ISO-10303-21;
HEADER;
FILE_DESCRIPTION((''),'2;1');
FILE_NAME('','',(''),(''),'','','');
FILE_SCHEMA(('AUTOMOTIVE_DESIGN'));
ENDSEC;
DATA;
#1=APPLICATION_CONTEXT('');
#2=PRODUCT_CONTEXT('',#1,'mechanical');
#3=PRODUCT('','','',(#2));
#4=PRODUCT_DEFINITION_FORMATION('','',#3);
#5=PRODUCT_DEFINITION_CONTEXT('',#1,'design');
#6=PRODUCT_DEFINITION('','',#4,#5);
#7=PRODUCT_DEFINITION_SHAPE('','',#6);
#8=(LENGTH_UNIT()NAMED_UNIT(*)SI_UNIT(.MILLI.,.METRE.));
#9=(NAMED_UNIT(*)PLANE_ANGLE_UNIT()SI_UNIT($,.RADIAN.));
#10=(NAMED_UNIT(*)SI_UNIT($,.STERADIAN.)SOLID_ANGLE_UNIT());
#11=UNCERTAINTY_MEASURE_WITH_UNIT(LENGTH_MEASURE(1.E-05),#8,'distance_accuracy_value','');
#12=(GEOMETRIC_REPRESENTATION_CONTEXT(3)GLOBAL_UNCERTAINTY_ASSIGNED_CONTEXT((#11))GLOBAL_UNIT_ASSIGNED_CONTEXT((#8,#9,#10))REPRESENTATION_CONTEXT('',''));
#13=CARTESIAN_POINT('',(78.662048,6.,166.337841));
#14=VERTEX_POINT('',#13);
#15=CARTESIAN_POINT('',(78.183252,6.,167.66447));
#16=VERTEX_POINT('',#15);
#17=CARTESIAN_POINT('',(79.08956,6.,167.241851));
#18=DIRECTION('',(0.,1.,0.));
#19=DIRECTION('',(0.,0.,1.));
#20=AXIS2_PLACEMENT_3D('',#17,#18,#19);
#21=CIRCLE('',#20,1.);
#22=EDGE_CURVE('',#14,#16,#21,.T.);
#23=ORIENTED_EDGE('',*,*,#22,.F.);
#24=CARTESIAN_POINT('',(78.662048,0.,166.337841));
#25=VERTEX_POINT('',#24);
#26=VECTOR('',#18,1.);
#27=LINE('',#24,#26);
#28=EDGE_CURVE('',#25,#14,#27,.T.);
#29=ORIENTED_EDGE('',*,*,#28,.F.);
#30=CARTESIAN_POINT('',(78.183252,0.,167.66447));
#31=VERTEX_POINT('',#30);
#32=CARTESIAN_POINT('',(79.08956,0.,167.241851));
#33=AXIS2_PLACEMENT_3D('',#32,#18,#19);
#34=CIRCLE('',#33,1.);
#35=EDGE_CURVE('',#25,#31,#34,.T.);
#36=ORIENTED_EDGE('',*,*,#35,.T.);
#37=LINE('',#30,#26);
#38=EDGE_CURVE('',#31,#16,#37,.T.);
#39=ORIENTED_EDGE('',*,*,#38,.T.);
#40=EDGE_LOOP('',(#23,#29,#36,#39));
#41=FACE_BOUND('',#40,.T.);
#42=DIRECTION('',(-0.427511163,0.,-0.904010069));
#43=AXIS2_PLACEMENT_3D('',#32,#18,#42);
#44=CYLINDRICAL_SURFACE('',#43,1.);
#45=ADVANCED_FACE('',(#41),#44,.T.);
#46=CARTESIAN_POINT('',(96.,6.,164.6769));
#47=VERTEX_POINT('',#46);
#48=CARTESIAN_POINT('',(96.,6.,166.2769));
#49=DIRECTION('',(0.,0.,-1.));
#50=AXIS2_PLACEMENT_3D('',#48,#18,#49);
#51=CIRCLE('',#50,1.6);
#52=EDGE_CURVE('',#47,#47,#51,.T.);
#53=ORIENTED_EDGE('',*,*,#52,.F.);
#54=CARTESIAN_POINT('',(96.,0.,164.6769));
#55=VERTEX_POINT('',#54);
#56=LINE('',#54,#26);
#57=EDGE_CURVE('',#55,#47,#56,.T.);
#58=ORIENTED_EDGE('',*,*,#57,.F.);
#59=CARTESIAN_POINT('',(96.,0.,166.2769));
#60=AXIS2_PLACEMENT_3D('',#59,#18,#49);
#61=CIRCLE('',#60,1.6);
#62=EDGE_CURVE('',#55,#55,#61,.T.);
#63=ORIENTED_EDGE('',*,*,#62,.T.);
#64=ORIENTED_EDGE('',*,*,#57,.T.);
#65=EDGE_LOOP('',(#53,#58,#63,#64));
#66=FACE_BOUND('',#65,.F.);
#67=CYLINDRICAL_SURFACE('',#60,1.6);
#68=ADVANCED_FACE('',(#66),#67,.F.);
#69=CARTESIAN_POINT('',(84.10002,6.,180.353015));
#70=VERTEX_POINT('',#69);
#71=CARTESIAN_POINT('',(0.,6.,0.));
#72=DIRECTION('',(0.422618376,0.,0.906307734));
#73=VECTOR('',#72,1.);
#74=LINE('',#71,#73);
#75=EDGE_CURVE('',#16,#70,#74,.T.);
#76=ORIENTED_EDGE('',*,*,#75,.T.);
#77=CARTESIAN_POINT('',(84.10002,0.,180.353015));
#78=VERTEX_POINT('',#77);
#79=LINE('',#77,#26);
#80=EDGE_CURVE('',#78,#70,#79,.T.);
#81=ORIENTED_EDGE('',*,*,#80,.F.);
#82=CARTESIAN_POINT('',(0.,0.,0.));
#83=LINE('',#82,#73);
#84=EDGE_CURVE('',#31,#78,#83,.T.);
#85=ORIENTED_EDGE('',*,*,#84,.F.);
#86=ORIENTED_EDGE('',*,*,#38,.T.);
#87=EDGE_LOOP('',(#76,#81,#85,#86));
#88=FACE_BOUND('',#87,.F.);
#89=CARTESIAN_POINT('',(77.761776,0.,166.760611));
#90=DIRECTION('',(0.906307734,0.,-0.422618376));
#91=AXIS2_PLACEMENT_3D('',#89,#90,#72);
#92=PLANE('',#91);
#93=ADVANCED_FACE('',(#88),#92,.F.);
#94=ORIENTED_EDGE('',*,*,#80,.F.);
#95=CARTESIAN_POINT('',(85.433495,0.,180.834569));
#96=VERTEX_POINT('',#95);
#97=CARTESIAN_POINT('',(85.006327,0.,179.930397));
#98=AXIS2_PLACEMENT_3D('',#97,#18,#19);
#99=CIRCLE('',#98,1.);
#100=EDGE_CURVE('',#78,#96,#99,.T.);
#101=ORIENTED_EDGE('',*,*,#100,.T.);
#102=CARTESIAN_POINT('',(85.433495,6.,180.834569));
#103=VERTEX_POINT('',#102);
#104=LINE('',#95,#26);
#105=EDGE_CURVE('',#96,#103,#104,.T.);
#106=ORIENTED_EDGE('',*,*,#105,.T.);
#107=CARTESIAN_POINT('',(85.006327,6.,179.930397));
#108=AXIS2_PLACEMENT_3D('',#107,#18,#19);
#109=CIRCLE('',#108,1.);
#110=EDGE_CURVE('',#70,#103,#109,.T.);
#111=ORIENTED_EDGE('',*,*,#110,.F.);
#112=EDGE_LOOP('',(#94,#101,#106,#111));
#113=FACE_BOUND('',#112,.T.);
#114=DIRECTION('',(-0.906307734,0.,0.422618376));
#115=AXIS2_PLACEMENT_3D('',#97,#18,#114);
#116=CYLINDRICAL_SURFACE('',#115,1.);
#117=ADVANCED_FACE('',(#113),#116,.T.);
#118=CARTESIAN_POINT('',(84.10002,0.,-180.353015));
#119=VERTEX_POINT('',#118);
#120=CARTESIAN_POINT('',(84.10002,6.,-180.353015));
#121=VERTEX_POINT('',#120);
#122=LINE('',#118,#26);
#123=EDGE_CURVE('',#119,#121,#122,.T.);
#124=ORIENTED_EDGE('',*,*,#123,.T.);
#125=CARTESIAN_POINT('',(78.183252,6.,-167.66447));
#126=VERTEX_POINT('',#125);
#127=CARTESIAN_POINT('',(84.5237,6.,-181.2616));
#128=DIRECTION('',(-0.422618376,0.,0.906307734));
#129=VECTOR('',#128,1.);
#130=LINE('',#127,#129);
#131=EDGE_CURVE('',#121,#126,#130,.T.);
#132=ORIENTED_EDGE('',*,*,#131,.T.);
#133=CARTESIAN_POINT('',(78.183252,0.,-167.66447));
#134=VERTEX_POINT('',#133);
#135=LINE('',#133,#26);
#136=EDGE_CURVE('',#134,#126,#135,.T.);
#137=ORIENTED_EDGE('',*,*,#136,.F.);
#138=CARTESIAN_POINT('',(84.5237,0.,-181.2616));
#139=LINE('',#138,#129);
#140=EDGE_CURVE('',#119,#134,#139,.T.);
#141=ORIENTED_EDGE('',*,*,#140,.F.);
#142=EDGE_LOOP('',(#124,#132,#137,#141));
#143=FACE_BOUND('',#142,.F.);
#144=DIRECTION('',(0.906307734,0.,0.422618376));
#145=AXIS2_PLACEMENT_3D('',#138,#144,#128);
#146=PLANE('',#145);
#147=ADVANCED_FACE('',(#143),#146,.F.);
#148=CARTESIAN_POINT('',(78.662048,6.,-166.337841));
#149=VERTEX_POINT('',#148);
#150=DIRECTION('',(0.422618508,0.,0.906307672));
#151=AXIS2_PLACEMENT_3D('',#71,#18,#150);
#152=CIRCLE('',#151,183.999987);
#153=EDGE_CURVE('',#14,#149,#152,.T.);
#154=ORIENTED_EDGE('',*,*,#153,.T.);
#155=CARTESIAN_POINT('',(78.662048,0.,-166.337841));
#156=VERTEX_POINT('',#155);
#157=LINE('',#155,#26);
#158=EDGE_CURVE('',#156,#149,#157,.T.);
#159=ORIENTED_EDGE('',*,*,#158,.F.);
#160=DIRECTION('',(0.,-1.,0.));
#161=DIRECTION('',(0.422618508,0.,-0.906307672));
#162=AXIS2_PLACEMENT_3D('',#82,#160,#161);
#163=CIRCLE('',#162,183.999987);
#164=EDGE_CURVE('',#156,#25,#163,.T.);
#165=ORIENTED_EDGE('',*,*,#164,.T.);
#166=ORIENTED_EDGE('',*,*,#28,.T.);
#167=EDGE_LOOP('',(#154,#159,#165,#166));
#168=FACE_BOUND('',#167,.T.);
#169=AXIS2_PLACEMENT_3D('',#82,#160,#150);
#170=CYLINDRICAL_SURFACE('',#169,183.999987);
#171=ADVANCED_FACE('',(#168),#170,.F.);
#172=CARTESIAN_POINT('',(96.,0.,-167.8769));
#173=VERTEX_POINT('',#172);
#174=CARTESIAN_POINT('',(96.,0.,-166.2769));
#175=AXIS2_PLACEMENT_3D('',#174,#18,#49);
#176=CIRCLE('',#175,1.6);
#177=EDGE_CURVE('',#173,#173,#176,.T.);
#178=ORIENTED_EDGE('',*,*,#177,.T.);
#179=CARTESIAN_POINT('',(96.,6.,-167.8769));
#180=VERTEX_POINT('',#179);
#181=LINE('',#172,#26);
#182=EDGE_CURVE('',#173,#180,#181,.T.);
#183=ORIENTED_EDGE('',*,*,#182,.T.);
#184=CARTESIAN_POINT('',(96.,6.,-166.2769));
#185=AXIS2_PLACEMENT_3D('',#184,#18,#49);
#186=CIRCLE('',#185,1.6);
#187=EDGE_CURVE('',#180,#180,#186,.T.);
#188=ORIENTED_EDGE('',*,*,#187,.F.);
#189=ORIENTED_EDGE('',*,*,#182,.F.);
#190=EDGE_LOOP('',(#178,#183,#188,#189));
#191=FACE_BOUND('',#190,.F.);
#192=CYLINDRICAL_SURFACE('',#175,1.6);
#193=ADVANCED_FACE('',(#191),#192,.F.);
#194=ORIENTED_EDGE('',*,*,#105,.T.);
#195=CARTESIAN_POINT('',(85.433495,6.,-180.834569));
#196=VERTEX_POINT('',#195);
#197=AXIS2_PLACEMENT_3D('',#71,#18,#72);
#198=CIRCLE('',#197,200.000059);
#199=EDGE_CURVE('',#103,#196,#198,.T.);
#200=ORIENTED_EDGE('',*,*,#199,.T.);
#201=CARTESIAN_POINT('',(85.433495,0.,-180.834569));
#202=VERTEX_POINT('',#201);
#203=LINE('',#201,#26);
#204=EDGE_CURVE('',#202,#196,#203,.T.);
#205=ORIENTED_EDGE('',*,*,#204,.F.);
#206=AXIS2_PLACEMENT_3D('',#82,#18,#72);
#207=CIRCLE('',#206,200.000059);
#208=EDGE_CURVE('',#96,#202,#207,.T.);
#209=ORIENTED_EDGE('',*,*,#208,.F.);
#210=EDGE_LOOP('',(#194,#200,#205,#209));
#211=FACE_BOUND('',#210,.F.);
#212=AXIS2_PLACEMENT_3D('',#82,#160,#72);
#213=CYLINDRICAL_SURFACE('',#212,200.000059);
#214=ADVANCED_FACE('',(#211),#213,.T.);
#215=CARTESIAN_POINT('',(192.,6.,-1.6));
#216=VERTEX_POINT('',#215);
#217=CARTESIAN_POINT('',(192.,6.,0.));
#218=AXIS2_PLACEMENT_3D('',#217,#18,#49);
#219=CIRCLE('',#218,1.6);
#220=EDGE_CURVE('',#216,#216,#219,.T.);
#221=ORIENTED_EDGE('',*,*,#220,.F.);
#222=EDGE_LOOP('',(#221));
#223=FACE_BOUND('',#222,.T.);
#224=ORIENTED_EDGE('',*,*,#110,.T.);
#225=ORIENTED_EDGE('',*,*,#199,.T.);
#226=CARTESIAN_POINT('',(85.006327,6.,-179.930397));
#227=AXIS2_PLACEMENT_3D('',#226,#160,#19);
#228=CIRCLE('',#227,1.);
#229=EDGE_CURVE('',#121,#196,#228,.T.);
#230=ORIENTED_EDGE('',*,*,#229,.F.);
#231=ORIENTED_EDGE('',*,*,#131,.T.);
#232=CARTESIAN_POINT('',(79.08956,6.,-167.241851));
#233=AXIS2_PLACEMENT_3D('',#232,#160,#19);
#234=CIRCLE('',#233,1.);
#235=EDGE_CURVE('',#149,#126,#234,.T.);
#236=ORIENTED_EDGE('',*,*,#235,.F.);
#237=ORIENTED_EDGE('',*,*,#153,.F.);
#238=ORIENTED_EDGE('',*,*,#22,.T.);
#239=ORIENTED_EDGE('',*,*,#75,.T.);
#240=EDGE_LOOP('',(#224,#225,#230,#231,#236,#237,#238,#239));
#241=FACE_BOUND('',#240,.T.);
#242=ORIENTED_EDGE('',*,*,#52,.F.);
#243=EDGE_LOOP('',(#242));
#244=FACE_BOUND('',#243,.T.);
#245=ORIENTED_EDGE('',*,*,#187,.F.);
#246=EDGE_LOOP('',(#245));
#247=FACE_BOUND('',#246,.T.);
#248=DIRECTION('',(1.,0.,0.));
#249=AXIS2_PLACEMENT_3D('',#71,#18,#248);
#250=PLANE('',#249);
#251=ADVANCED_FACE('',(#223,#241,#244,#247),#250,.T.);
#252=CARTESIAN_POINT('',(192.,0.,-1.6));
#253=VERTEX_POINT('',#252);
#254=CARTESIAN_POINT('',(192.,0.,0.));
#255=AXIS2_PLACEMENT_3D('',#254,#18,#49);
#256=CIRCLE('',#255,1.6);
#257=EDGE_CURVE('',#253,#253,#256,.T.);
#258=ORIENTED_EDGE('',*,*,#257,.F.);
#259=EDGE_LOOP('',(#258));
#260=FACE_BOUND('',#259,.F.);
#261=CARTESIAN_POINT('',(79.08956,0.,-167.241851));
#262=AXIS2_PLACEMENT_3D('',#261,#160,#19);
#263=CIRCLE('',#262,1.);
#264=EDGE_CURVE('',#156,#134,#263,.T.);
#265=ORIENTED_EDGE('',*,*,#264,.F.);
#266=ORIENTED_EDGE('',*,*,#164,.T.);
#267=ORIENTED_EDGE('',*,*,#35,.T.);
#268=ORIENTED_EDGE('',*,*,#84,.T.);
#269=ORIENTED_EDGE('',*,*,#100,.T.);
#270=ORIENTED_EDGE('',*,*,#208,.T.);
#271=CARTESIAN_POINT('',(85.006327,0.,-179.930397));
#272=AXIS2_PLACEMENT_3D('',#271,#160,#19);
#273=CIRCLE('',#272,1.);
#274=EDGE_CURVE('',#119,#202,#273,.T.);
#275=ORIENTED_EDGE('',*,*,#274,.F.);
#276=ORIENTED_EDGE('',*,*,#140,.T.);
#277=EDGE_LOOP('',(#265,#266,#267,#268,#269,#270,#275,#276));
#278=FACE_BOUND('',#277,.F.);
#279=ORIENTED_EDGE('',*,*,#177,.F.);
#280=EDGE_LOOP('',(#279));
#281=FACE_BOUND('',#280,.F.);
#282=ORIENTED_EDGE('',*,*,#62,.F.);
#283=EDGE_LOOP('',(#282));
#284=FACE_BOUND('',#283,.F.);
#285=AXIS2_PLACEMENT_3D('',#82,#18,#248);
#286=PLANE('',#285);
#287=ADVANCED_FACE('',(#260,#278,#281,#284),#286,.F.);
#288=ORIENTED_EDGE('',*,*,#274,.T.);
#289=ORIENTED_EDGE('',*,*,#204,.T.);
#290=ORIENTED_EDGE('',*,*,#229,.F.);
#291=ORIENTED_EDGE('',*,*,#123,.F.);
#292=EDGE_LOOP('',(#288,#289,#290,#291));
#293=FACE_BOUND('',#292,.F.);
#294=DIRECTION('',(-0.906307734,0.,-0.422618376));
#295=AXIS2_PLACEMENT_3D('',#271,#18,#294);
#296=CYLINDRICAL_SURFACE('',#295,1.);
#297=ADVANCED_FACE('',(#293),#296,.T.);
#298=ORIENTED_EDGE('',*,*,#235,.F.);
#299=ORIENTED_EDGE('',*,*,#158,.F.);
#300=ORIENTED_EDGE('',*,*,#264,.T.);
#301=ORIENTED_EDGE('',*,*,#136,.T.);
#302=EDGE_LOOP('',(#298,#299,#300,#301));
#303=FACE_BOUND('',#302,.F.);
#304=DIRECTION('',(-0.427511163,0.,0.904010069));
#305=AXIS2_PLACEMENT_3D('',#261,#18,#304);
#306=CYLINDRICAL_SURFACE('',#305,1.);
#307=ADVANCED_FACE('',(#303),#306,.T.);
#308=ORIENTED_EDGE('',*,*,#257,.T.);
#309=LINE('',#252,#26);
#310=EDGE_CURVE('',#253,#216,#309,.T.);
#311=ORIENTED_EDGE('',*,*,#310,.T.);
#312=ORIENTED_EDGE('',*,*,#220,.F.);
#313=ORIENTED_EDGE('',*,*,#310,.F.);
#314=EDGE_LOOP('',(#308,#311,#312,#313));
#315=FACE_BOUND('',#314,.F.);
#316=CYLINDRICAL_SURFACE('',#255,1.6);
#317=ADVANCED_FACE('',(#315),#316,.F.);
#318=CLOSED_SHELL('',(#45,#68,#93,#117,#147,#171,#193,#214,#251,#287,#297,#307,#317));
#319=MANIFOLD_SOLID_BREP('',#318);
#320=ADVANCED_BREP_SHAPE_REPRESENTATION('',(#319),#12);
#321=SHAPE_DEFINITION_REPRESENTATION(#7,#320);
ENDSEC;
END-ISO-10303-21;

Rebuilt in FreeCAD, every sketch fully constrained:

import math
import FreeCAD as App
import Part
import Sketcher

V = App.Vector
Q = App.Units.Quantity


def edges_at(feature, points):
    """Names of the edges that pass closest to the given points."""
    edges = feature.Shape.Edges
    near = lambda p: min(range(len(edges)), key=lambda i: edges[i].distToShape(Part.Vertex(*p))[0])
    return sorted({f"Edge{near(p) + 1}" for p in points})

doc = App.newDocument("Part")
body = doc.addObject("PartDesign::Body", "Body")

# Sketch on XZ plane
sketch1 = doc.addObject("Sketcher::SketchObject", "Sketch")
body.addObject(sketch1)
sketch1.AttachmentSupport = (doc.XZ_Plane, [""])
sketch1.MapMode = "FlatFace"
sketch1.addGeometry(Part.LineSegment(V(77.761776, 166.760611, 0), V(84.5237, 181.2616, 0)), False)
sketch1.addGeometry(Part.ArcOfCircle(Part.Circle(V(0, 0, 0), V(0, 0, 1), 200.000059), math.radians(-64.999993), math.radians(64.999993)), False)
sketch1.addGeometry(Part.LineSegment(V(84.5237, -181.2616, 0), V(77.761776, -166.760611, 0)), False)
sketch1.addGeometry(Part.ArcOfCircle(Part.Circle(V(0, 0, 0), V(0, 0, 1), 183.999987), math.radians(-64.999984), math.radians(64.999984)), False)
sketch1.addConstraint(Sketcher.Constraint("Coincident", 0, 2, 1, 2))
sketch1.addConstraint(Sketcher.Constraint("Coincident", 1, 1, 2, 1))
sketch1.addConstraint(Sketcher.Constraint("Coincident", 2, 2, 3, 1))
sketch1.addConstraint(Sketcher.Constraint("Coincident", 3, 2, 0, 1))
sketch1.addConstraint(Sketcher.Constraint("Coincident", 1, 3, -1, 1))
sketch1.addConstraint(Sketcher.Constraint("Coincident", 3, 3, -1, 1))
sketch1.addConstraint(Sketcher.Constraint("Vertical", 0, 2, 1, 1))
sketch1.addConstraint(Sketcher.Constraint("Vertical", 2, 2, 3, 2))
sketch1.addConstraint(Sketcher.Constraint("Radius", 1, Q("200 mm")))
sketch1.addConstraint(Sketcher.Constraint("Radius", 3, Q("184 mm")))
sketch1.addConstraint(Sketcher.Constraint("Angle", 0, Q("65 deg")))
sketch1.addConstraint(Sketcher.Constraint("DistanceX", -1, 1, 0, 2, Q("84.5237 mm")))
pad1 = doc.addObject("PartDesign::Pad", "Pad")
body.addObject(pad1)
pad1.Profile = sketch1
pad1.Length = 6
pad1.Reversed = True

# Sketch on XZ plane
sketch2 = doc.addObject("Sketcher::SketchObject", "Sketch001")
body.addObject(sketch2)
sketch2.AttachmentSupport = (doc.XZ_Plane, [""])
sketch2.MapMode = "FlatFace"
sketch2.addGeometry(Part.Circle(V(192, 0, 0), V(0, 0, 1), 1.6), False)
sketch2.addGeometry(Part.Circle(V(96, 166.2769, 0), V(0, 0, 1), 1.6), False)
sketch2.addGeometry(Part.Circle(V(96, -166.2769, 0), V(0, 0, 1), 1.6), False)
sketch2.addConstraint(Sketcher.Constraint("Equal", 0, 1))
sketch2.addConstraint(Sketcher.Constraint("Equal", 1, 2))
sketch2.addConstraint(Sketcher.Constraint("Symmetric", 1, 3, 2, 3, -1))
sketch2.addConstraint(Sketcher.Constraint("PointOnObject", 0, 3, -1))
sketch2.addConstraint(Sketcher.Constraint("Diameter", 0, Q("3.2 mm")))
sketch2.addConstraint(Sketcher.Constraint("DistanceX", -1, 1, 0, 3, Q("192 mm")))
sketch2.addConstraint(Sketcher.Constraint("DistanceX", -1, 1, 1, 3, Q("96 mm")))
sketch2.addConstraint(Sketcher.Constraint("DistanceY", -1, 1, 1, 3, Q("166.277 mm")))
doc.recompute()
hole = doc.addObject("PartDesign::Hole", "Hole")
body.addObject(hole)
hole.Profile = sketch2
hole.ThreadType = "None"
hole.Diameter = 3.2
hole.DepthType = "ThroughAll"
doc.recompute()

fillet = doc.addObject("PartDesign::Fillet", "Fillet")
body.addObject(fillet)
fillet.Base = (hole, edges_at(hole, [
    (84.524, 3, 181.262),
    (77.762, 3, 166.761),
    (84.524, 3, -181.262),
    (77.762, 3, -166.761),
]))
fillet.Radius = 1

doc.recompute()
